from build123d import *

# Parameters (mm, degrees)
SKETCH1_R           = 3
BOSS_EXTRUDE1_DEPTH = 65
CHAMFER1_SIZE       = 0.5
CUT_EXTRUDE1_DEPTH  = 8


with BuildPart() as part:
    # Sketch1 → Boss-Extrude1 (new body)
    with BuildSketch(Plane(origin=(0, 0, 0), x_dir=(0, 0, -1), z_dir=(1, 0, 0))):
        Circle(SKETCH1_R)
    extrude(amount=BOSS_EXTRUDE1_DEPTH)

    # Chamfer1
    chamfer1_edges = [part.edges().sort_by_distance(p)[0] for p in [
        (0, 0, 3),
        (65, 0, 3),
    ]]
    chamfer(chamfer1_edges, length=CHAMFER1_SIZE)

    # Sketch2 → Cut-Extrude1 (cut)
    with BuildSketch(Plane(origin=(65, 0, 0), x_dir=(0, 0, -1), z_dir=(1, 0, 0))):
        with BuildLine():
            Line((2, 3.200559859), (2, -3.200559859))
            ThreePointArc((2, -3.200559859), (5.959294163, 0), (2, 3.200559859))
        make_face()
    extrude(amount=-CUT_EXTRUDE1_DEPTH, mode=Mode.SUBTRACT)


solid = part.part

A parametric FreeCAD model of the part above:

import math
import FreeCAD as App
import Part
import Sketcher

V = App.Vector


def edges_at(feature, points):
    """Names of the edges that pass closest to the given points."""
    edges = feature.Shape.Edges
    near = lambda p: min(range(len(edges)), key=lambda i: edges[i].distToShape(Part.Vertex(*p))[0])
    return sorted({f"Edge{near(p) + 1}" for p in points})

doc = App.newDocument("Part")
body = doc.addObject("PartDesign::Body", "Body")

sketch1 = doc.addObject("Sketcher::SketchObject", "Sketch")
body.addObject(sketch1)
sketch1.AttachmentSupport = (doc.YZ_Plane, [""])
sketch1.MapMode = "FlatFace"
sketch1.addGeometry(Part.Circle(V(0, 0, 0), V(0, 0, 1), 3), False)
sketch1.addConstraint(Sketcher.Constraint("Coincident", 0, 3, -1, 1))
sketch1.addConstraint(Sketcher.Constraint("Diameter", 0, 6.0))
pad1 = doc.addObject("PartDesign::Pad", "Pad")
body.addObject(pad1)
pad1.Profile = sketch1
pad1.Length = 65
doc.recompute()

chamfer = doc.addObject("PartDesign::Chamfer", "Chamfer")
body.addObject(chamfer)
chamfer.Base = (pad1, edges_at(pad1, [(0, 0, 3), (65, 0, 3)]))
chamfer.Size = 0.5

sketch2 = doc.addObject("Sketcher::SketchObject", "Sketch001")
body.addObject(sketch2)
sketch2.AttachmentSupport = (doc.YZ_Plane, [""])
sketch2.MapMode = "FlatFace"
sketch2.AttachmentOffset = App.Placement(V(0, 0, 65), App.Rotation())
sketch2.addGeometry(Part.LineSegment(V(3.2, -2, 0), V(-3.2, -2, 0)), False)
sketch2.addGeometry(Part.ArcOfCircle(Part.Circle(V(0, -2.7, 0), V(0, 0, 1), 3.3), math.radians(168), math.radians(372)), False)
sketch2.addConstraint(Sketcher.Constraint("Coincident", 0, 1, 1, 2))
sketch2.addConstraint(Sketcher.Constraint("Coincident", 1, 1, 0, 2))
sketch2.addConstraint(Sketcher.Constraint("Horizontal", 0))
sketch2.addConstraint(Sketcher.Constraint("PointOnObject", 1, 3, -2))
sketch2.addConstraint(Sketcher.Constraint("DistanceY", 0, 1, -1, 1, 2.0))
sketch2.addConstraint(Sketcher.Constraint("Radius", 1, 3.273259))
sketch2.addConstraint(Sketcher.Constraint("DistanceX", 0, 2, 0, 1, 6.40112))
pocket1 = doc.addObject("PartDesign::Pocket", "Pocket")
body.addObject(pocket1)
pocket1.Profile = sketch2
pocket1.Length = 8

doc.recompute()
